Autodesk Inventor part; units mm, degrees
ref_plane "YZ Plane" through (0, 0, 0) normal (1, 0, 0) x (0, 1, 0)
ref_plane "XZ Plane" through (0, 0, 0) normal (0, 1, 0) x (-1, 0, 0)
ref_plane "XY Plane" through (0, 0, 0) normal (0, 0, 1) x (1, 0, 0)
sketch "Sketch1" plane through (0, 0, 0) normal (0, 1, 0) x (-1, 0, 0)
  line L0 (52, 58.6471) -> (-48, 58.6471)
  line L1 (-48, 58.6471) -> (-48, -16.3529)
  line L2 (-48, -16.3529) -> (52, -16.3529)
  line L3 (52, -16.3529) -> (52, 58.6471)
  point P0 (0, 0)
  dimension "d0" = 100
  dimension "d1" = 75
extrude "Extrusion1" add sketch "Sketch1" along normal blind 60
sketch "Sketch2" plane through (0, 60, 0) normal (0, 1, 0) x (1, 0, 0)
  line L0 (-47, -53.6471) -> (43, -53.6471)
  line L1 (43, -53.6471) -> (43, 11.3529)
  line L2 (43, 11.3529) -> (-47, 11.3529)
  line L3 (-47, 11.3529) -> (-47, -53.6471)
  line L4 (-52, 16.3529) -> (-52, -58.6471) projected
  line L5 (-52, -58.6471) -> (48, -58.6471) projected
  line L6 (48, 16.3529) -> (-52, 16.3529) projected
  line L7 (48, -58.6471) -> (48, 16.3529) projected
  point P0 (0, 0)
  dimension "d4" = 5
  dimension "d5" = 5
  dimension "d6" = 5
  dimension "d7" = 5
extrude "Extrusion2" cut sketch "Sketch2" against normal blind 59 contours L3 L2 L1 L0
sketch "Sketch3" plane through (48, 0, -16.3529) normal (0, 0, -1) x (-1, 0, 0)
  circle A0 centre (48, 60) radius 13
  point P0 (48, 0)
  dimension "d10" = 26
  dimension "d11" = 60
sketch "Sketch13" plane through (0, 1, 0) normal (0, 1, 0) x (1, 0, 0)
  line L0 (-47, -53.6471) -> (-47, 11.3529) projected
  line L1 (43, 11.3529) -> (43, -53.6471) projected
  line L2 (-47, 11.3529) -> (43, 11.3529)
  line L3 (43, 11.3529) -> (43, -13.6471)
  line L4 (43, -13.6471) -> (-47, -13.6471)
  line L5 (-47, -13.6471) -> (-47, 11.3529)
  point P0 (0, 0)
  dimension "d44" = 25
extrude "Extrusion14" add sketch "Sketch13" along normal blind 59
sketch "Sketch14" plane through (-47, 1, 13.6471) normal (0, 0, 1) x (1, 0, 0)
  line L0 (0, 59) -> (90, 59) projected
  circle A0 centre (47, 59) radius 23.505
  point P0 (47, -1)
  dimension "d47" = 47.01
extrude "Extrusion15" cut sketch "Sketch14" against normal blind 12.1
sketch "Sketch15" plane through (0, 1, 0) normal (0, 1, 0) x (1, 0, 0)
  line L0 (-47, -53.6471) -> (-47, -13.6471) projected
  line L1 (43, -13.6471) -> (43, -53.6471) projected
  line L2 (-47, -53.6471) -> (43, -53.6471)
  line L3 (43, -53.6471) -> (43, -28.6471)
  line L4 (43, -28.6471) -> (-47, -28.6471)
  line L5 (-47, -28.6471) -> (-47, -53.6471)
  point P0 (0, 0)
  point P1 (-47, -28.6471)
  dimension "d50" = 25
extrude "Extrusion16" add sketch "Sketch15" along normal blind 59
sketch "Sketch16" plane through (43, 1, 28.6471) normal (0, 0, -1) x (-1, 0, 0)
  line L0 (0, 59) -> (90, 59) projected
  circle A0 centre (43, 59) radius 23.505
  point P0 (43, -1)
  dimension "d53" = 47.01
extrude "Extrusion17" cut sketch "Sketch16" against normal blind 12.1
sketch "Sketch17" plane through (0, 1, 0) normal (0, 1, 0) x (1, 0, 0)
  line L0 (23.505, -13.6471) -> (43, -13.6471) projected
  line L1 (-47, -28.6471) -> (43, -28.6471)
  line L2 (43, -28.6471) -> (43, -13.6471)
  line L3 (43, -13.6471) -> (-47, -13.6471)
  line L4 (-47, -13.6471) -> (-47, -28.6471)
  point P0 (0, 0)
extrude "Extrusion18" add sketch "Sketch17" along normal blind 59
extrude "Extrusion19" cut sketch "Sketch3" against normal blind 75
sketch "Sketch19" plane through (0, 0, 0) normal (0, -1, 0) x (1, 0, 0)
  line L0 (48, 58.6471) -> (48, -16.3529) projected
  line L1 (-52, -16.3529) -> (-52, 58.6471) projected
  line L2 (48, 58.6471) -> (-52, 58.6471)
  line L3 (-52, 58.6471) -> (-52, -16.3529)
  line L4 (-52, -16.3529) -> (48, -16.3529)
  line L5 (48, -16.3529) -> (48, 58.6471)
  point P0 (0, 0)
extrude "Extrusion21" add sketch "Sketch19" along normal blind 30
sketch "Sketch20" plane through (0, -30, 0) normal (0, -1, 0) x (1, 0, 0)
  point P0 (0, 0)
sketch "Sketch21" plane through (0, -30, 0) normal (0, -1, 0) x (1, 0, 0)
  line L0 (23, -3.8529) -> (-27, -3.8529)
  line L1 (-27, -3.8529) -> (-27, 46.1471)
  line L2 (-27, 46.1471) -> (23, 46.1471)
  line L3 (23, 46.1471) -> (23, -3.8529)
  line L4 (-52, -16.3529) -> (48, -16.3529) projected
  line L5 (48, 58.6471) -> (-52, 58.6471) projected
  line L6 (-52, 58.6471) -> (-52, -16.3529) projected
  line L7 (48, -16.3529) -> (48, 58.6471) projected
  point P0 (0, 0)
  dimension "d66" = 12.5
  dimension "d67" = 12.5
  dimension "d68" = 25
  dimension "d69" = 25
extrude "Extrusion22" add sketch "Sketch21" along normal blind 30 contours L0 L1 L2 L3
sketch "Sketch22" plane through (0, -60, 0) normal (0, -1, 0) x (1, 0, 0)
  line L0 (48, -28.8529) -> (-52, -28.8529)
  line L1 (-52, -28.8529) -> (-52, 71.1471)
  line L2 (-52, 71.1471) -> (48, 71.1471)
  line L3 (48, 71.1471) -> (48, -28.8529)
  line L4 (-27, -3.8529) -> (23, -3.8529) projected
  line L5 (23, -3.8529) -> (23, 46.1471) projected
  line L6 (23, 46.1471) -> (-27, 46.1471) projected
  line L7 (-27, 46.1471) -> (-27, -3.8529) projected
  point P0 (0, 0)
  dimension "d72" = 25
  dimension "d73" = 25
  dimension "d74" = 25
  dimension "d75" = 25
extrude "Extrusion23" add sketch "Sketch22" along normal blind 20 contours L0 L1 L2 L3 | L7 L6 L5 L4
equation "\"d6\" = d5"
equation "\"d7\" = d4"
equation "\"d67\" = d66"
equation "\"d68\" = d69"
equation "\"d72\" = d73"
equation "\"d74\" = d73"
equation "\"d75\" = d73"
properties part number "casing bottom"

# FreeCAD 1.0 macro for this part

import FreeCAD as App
import Part
import Sketcher

V = App.Vector
Q = App.Units.Quantity


def add_polygon(sketch, points):
    """Adds a closed chain of lines whose ends are joined by coincident constraints."""
    first, n = sketch.GeometryCount, len(points)
    for a, b in zip(points, points[1:] + points[:1]):
        sketch.addGeometry(Part.LineSegment(App.Vector(*a, 0), App.Vector(*b, 0)), False)
    for i in range(n):
        sketch.addConstraint(Sketcher.Constraint("Coincident", first + i, 2, first + (i + 1) % n, 1))

doc = App.newDocument("Part")
body = doc.addObject("PartDesign::Body", "Body")

# Sketch on XZ plane
sketch1 = body.newObject("Sketcher::SketchObject", "Sketch")
sketch1.AttachmentSupport = (doc.getObject("XZ_Plane"), [""])
sketch1.MapMode = "FlatFace"
add_polygon(sketch1, [(-52, -16), (-52, 59), (48, 59), (48, -16)])  # lines 0-3
sketch1.addConstraint(Sketcher.Constraint("Vertical", 0))
sketch1.addConstraint(Sketcher.Constraint("Horizontal", 1))
sketch1.addConstraint(Sketcher.Constraint("Vertical", 2))
sketch1.addConstraint(Sketcher.Constraint("Horizontal", 3))
sketch1.addConstraint(Sketcher.Constraint("DistanceX", 1, 1, 1, 2, Q("100 mm")))
sketch1.addConstraint(Sketcher.Constraint("DistanceY", 0, 1, 0, 2, Q("75 mm")))
sketch1.addConstraint(Sketcher.Constraint("DistanceX", 0, 2, -1, 1, Q("52 mm")))
sketch1.addConstraint(Sketcher.Constraint("DistanceY", -1, 1, 0, 2, Q("58.647 mm")))
pad1 = body.newObject("PartDesign::Pad", "Pad")
pad1.Profile = sketch1
pad1.Length = 60
pad1.Reversed = True

# Sketch on XZ plane
sketch2 = body.newObject("Sketcher::SketchObject", "Sketch001")
sketch2.AttachmentSupport = (doc.getObject("XZ_Plane"), [""])
sketch2.MapMode = "FlatFace"
sketch2.AttachmentOffset = App.Placement(V(0, 0, -60), App.Rotation())
add_polygon(sketch2, [(-47, -11), (-47, 54), (43, 54), (43, -11)])  # lines 0-3
sketch2.addConstraint(Sketcher.Constraint("Vertical", 0))
sketch2.addConstraint(Sketcher.Constraint("Horizontal", 1))
sketch2.addConstraint(Sketcher.Constraint("Vertical", 2))
sketch2.addConstraint(Sketcher.Constraint("Horizontal", 3))
sketch2.addConstraint(Sketcher.Constraint("DistanceX", 1, 1, 1, 2, Q("90 mm")))
sketch2.addConstraint(Sketcher.Constraint("DistanceY", 0, 1, 0, 2, Q("65 mm")))
sketch2.addConstraint(Sketcher.Constraint("DistanceX", 0, 2, -1, 1, Q("47 mm")))
sketch2.addConstraint(Sketcher.Constraint("DistanceY", -1, 1, 0, 2, Q("53.647 mm")))
pocket1 = body.newObject("PartDesign::Pocket", "Pocket")
pocket1.Profile = sketch2
pocket1.Length = 59
pocket1.Reversed = True

# Sketch on XZ plane
sketch3 = body.newObject("Sketcher::SketchObject", "Sketch002")
sketch3.AttachmentSupport = (doc.getObject("XZ_Plane"), [""])
sketch3.MapMode = "FlatFace"
sketch3.AttachmentOffset = App.Placement(V(0, 0, -1), App.Rotation())
add_polygon(sketch3, [(-47, -11), (-47, 14), (43, 14), (43, -11)])  # lines 0-3
sketch3.addConstraint(Sketcher.Constraint("Vertical", 0))
sketch3.addConstraint(Sketcher.Constraint("Horizontal", 1))
sketch3.addConstraint(Sketcher.Constraint("Vertical", 2))
sketch3.addConstraint(Sketcher.Constraint("Horizontal", 3))
sketch3.addConstraint(Sketcher.Constraint("DistanceY", 0, 1, 0, 2, Q("25 mm")))
sketch3.addConstraint(Sketcher.Constraint("DistanceX", 1, 1, 1, 2, Q("90 mm")))
sketch3.addConstraint(Sketcher.Constraint("DistanceX", 0, 2, -1, 1, Q("47 mm")))
sketch3.addConstraint(Sketcher.Constraint("DistanceY", -1, 1, 0, 2, Q("13.647 mm")))
pad2 = body.newObject("PartDesign::Pad", "Pad001")
pad2.Profile = sketch3
pad2.Length = 59
pad2.Reversed = True

# Sketch on XY plane
sketch4 = body.newObject("Sketcher::SketchObject", "Sketch003")
sketch4.AttachmentSupport = (doc.getObject("XY_Plane"), [""])
sketch4.MapMode = "FlatFace"
sketch4.AttachmentOffset = App.Placement(V(0, 0, 13.6471), App.Rotation())
sketch4.addGeometry(Part.Circle(V(0, 60, 0), V(0, 0, 1), 24), False)
sketch4.addConstraint(Sketcher.Constraint("PointOnObject", 0, 3, -2))
sketch4.addConstraint(Sketcher.Constraint("Diameter", 0, Q("47.01 mm")))
sketch4.addConstraint(Sketcher.Constraint("DistanceY", -1, 1, 0, 3, Q("60 mm")))
pocket2 = body.newObject("PartDesign::Pocket", "Pocket001")
pocket2.Profile = sketch4
pocket2.Length = 12.1

# Sketch on XZ plane
sketch5 = body.newObject("Sketcher::SketchObject", "Sketch004")
sketch5.AttachmentSupport = (doc.getObject("XZ_Plane"), [""])
sketch5.MapMode = "FlatFace"
sketch5.AttachmentOffset = App.Placement(V(0, 0, -1), App.Rotation())
add_polygon(sketch5, [(-47, 29), (-47, 54), (43, 54), (43, 29)])  # lines 0-3
sketch5.addConstraint(Sketcher.Constraint("Vertical", 0))
sketch5.addConstraint(Sketcher.Constraint("Horizontal", 1))
sketch5.addConstraint(Sketcher.Constraint("Vertical", 2))
sketch5.addConstraint(Sketcher.Constraint("Horizontal", 3))
sketch5.addConstraint(Sketcher.Constraint("DistanceY", 0, 1, 0, 2, Q("25 mm")))
sketch5.addConstraint(Sketcher.Constraint("DistanceX", 1, 1, 1, 2, Q("90 mm")))
sketch5.addConstraint(Sketcher.Constraint("DistanceX", 0, 2, -1, 1, Q("47 mm")))
sketch5.addConstraint(Sketcher.Constraint("DistanceY", -1, 1, 0, 2, Q("53.647 mm")))
pad3 = body.newObject("PartDesign::Pad", "Pad002")
pad3.Profile = sketch5
pad3.Length = 59
pad3.Reversed = True

# Sketch on XY plane
sketch6 = body.newObject("Sketcher::SketchObject", "Sketch005")
sketch6.AttachmentSupport = (doc.getObject("XY_Plane"), [""])
sketch6.MapMode = "FlatFace"
sketch6.AttachmentOffset = App.Placement(V(0, 0, 28.6471), App.Rotation())
sketch6.addGeometry(Part.Circle(V(0, 60, 0), V(0, 0, 1), 24), False)
sketch6.addConstraint(Sketcher.Constraint("PointOnObject", 0, 3, -2))
sketch6.addConstraint(Sketcher.Constraint("Diameter", 0, Q("47.01 mm")))
sketch6.addConstraint(Sketcher.Constraint("DistanceY", -1, 1, 0, 3, Q("60 mm")))
pocket3 = body.newObject("PartDesign::Pocket", "Pocket002")
pocket3.Profile = sketch6
pocket3.Length = 12.1
pocket3.Reversed = True

# Sketch on XZ plane
sketch7 = body.newObject("Sketcher::SketchObject", "Sketch006")
sketch7.AttachmentSupport = (doc.getObject("XZ_Plane"), [""])
sketch7.MapMode = "FlatFace"
sketch7.AttachmentOffset = App.Placement(V(0, 0, -1), App.Rotation())
add_polygon(sketch7, [(43, 14), (-47, 14), (-47, 29), (43, 29)])  # lines 0-3
sketch7.addConstraint(Sketcher.Constraint("Horizontal", 0))
sketch7.addConstraint(Sketcher.Constraint("Vertical", 1))
sketch7.addConstraint(Sketcher.Constraint("Horizontal", 2))
sketch7.addConstraint(Sketcher.Constraint("Vertical", 3))
sketch7.addConstraint(Sketcher.Constraint("DistanceX", 0, 2, 0, 1, Q("90 mm")))
sketch7.addConstraint(Sketcher.Constraint("DistanceY", 1, 1, 1, 2, Q("15 mm")))
sketch7.addConstraint(Sketcher.Constraint("DistanceX", 0, 2, -1, 1, Q("47 mm")))
sketch7.addConstraint(Sketcher.Constraint("DistanceY", -1, 1, 0, 2, Q("13.647 mm")))
pad4 = body.newObject("PartDesign::Pad", "Pad003")
pad4.Profile = sketch7
pad4.Length = 59
pad4.Reversed = True

# Sketch on XY plane
sketch8 = body.newObject("Sketcher::SketchObject", "Sketch007")
sketch8.AttachmentSupport = (doc.getObject("XY_Plane"), [""])
sketch8.MapMode = "FlatFace"
sketch8.AttachmentOffset = App.Placement(V(0, 0, -16.3529), App.Rotation())
sketch8.addGeometry(Part.Circle(V(0, 60, 0), V(0, 0, 1), 13), False)
sketch8.addConstraint(Sketcher.Constraint("PointOnObject", 0, 3, -2))
sketch8.addConstraint(Sketcher.Constraint("Diameter", 0, Q("26 mm")))
sketch8.addConstraint(Sketcher.Constraint("DistanceY", -1, 1, 0, 3, Q("60 mm")))
pocket4 = body.newObject("PartDesign::Pocket", "Pocket003")
pocket4.Profile = sketch8
pocket4.Length = 75
pocket4.Reversed = True

# Sketch on XZ plane
sketch9 = body.newObject("Sketcher::SketchObject", "Sketch008")
sketch9.AttachmentSupport = (doc.getObject("XZ_Plane"), [""])
sketch9.MapMode = "FlatFace"
add_polygon(sketch9, [(48, -16), (48, 59), (-52, 59), (-52, -16)])  # lines 0-3
sketch9.addConstraint(Sketcher.Constraint("Vertical", 0))
sketch9.addConstraint(Sketcher.Constraint("Horizontal", 1))
sketch9.addConstraint(Sketcher.Constraint("Vertical", 2))
sketch9.addConstraint(Sketcher.Constraint("Horizontal", 3))
sketch9.addConstraint(Sketcher.Constraint("DistanceX", 1, 2, 1, 1, Q("100 mm")))
sketch9.addConstraint(Sketcher.Constraint("DistanceY", 0, 1, 0, 2, Q("75 mm")))
sketch9.addConstraint(Sketcher.Constraint("DistanceX", -1, 1, 0, 2, Q("48 mm")))
sketch9.addConstraint(Sketcher.Constraint("DistanceY", -1, 1, 0, 2, Q("58.647 mm")))
pad5 = body.newObject("PartDesign::Pad", "Pad004")
pad5.Profile = sketch9
pad5.Length = 30

# Sketch on XZ plane
sketch10 = body.newObject("Sketcher::SketchObject", "Sketch009")
sketch10.AttachmentSupport = (doc.getObject("XZ_Plane"), [""])
sketch10.MapMode = "FlatFace"
sketch10.AttachmentOffset = App.Placement(V(0, 0, 30), App.Rotation())
add_polygon(sketch10, [(-27, -4), (23, -4), (23, 46), (-27, 46)])  # lines 0-3
sketch10.addConstraint(Sketcher.Constraint("Horizontal", 0))
sketch10.addConstraint(Sketcher.Constraint("Vertical", 1))
sketch10.addConstraint(Sketcher.Constraint("Horizontal", 2))
sketch10.addConstraint(Sketcher.Constraint("Vertical", 3))
sketch10.addConstraint(Sketcher.Constraint("Equal", 2, 1))
sketch10.addConstraint(Sketcher.Constraint("DistanceX", 0, 1, 0, 2, Q("50 mm")))
sketch10.addConstraint(Sketcher.Constraint("DistanceX", -1, 1, 0, 2, Q("23 mm")))
sketch10.addConstraint(Sketcher.Constraint("DistanceY", 0, 2, -1, 1, Q("3.853 mm")))
pad6 = body.newObject("PartDesign::Pad", "Pad005")
pad6.Profile = sketch10
pad6.Length = 30

# Sketch on XZ plane
sketch11 = body.newObject("Sketcher::SketchObject", "Sketch010")
sketch11.AttachmentSupport = (doc.getObject("XZ_Plane"), [""])
sketch11.MapMode = "FlatFace"
sketch11.AttachmentOffset = App.Placement(V(0, 0, 60), App.Rotation())
add_polygon(sketch11, [(-52, -29), (48, -29), (48, 71), (-52, 71)])  # lines 0-3
sketch11.addConstraint(Sketcher.Constraint("Horizontal", 0))
sketch11.addConstraint(Sketcher.Constraint("Vertical", 1))
sketch11.addConstraint(Sketcher.Constraint("Horizontal", 2))
sketch11.addConstraint(Sketcher.Constraint("Vertical", 3))
sketch11.addConstraint(Sketcher.Constraint("Equal", 2, 1))
sketch11.addConstraint(Sketcher.Constraint("DistanceX", 0, 1, 0, 2, Q("100 mm")))
sketch11.addConstraint(Sketcher.Constraint("DistanceX", -1, 1, 0, 2, Q("48 mm")))
sketch11.addConstraint(Sketcher.Constraint("DistanceY", 0, 2, -1, 1, Q("28.853 mm")))
pad7 = body.newObject("PartDesign::Pad", "Pad006")
pad7.Profile = sketch11
pad7.Length = 20

doc.recompute()
